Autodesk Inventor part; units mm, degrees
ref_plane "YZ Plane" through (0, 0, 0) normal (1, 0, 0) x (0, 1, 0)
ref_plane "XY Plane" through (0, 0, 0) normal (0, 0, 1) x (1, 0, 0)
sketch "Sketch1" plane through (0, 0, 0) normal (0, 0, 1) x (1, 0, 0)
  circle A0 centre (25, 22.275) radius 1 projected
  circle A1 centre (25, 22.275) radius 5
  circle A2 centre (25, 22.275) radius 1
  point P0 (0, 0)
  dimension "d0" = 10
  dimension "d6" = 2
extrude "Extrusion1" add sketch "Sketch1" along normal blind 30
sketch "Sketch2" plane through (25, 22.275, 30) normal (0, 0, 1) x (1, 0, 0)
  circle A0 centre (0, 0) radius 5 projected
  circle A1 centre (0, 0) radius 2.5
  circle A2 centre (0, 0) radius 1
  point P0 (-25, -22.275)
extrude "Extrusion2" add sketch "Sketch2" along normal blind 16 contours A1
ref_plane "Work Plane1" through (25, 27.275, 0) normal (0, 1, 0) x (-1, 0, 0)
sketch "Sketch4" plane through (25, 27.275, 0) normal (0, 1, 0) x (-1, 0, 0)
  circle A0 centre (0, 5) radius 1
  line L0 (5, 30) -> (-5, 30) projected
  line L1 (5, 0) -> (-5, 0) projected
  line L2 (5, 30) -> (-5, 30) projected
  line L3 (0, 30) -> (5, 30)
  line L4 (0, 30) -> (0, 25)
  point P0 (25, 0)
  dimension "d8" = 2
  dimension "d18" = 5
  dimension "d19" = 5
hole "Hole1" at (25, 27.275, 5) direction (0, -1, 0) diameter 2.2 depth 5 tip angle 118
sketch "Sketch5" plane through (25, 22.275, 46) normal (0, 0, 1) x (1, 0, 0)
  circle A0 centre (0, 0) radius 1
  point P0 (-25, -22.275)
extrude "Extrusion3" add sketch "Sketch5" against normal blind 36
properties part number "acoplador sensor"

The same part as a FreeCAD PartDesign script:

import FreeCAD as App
import Part
import Sketcher

V = App.Vector
Q = App.Units.Quantity

doc = App.newDocument("Part")
body = doc.addObject("PartDesign::Body", "Body")

# Sketch on XY plane
sketch1 = body.newObject("Sketcher::SketchObject", "Sketch")
sketch1.AttachmentSupport = (doc.getObject("XY_Plane"), [""])
sketch1.MapMode = "FlatFace"
sketch1.addGeometry(Part.Circle(V(25, 22.3, 0), V(0, 0, 1), 5), False)
sketch1.addGeometry(Part.Circle(V(25, 22.3, 0), V(0, 0, 1), 1), False)
sketch1.addConstraint(Sketcher.Constraint("Coincident", 1, 3, 0, 3))
sketch1.addConstraint(Sketcher.Constraint("Diameter", 0, Q("10 mm")))
sketch1.addConstraint(Sketcher.Constraint("Diameter", 1, Q("2 mm")))
sketch1.addConstraint(Sketcher.Constraint("DistanceX", -1, 1, 0, 3, Q("25 mm")))
sketch1.addConstraint(Sketcher.Constraint("DistanceY", -1, 1, 0, 3, Q("22.275 mm")))
pad1 = body.newObject("PartDesign::Pad", "Pad")
pad1.Profile = sketch1
pad1.Length = 30

# Sketch on XY plane
sketch2 = body.newObject("Sketcher::SketchObject", "Sketch001")
sketch2.AttachmentSupport = (doc.getObject("XY_Plane"), [""])
sketch2.MapMode = "FlatFace"
sketch2.AttachmentOffset = App.Placement(V(0, 0, 30), App.Rotation())
sketch2.addGeometry(Part.Circle(V(25, 22.3, 0), V(0, 0, 1), 2.5), False)
sketch2.addGeometry(Part.Circle(V(25, 22.3, 0), V(0, 0, 1), 1), False)
sketch2.addConstraint(Sketcher.Constraint("Coincident", 1, 3, 0, 3))
sketch2.addConstraint(Sketcher.Constraint("Diameter", 0, Q("5 mm")))
sketch2.addConstraint(Sketcher.Constraint("Diameter", 1, Q("2 mm")))
sketch2.addConstraint(Sketcher.Constraint("DistanceX", -1, 1, 0, 3, Q("25 mm")))
sketch2.addConstraint(Sketcher.Constraint("DistanceY", -1, 1, 0, 3, Q("22.275 mm")))
pad2 = body.newObject("PartDesign::Pad", "Pad001")
pad2.Profile = sketch2
pad2.Length = 16

# Sketch on XZ plane
sketch3 = body.newObject("Sketcher::SketchObject", "Sketch002")
sketch3.AttachmentSupport = (doc.getObject("XZ_Plane"), [""])
sketch3.MapMode = "FlatFace"
sketch3.AttachmentOffset = App.Placement(V(0, 0, -27.275), App.Rotation())
sketch3.addGeometry(Part.Circle(V(25, 5, 0), V(0, 0, 1), 1.1), False)
sketch3.addConstraint(Sketcher.Constraint("Diameter", 0, Q("2.2 mm")))
sketch3.addConstraint(Sketcher.Constraint("DistanceX", -1, 1, 0, 3, Q("25 mm")))
sketch3.addConstraint(Sketcher.Constraint("DistanceY", -1, 1, 0, 3, Q("5 mm")))
doc.recompute()
hole = body.newObject("PartDesign::Hole", "Hole")
hole.Profile = sketch3
hole.ThreadType = "None"
hole.Diameter = 2.2
hole.DepthType = "Dimension"
hole.Depth = 5
hole.DrillPoint = "Angled"
hole.DrillPointAngle = 118
hole.Reversed = True

# Sketch on XY plane
sketch4 = body.newObject("Sketcher::SketchObject", "Sketch003")
sketch4.AttachmentSupport = (doc.getObject("XY_Plane"), [""])
sketch4.MapMode = "FlatFace"
sketch4.AttachmentOffset = App.Placement(V(0, 0, 46), App.Rotation())
sketch4.addGeometry(Part.Circle(V(25, 22.3, 0), V(0, 0, 1), 1), False)
sketch4.addConstraint(Sketcher.Constraint("Diameter", 0, Q("2 mm")))
sketch4.addConstraint(Sketcher.Constraint("DistanceX", -1, 1, 0, 3, Q("25 mm")))
sketch4.addConstraint(Sketcher.Constraint("DistanceY", -1, 1, 0, 3, Q("22.275 mm")))
pad3 = body.newObject("PartDesign::Pad", "Pad002")
pad3.Profile = sketch4
pad3.Length = 36
pad3.Reversed = True

doc.recompute()
